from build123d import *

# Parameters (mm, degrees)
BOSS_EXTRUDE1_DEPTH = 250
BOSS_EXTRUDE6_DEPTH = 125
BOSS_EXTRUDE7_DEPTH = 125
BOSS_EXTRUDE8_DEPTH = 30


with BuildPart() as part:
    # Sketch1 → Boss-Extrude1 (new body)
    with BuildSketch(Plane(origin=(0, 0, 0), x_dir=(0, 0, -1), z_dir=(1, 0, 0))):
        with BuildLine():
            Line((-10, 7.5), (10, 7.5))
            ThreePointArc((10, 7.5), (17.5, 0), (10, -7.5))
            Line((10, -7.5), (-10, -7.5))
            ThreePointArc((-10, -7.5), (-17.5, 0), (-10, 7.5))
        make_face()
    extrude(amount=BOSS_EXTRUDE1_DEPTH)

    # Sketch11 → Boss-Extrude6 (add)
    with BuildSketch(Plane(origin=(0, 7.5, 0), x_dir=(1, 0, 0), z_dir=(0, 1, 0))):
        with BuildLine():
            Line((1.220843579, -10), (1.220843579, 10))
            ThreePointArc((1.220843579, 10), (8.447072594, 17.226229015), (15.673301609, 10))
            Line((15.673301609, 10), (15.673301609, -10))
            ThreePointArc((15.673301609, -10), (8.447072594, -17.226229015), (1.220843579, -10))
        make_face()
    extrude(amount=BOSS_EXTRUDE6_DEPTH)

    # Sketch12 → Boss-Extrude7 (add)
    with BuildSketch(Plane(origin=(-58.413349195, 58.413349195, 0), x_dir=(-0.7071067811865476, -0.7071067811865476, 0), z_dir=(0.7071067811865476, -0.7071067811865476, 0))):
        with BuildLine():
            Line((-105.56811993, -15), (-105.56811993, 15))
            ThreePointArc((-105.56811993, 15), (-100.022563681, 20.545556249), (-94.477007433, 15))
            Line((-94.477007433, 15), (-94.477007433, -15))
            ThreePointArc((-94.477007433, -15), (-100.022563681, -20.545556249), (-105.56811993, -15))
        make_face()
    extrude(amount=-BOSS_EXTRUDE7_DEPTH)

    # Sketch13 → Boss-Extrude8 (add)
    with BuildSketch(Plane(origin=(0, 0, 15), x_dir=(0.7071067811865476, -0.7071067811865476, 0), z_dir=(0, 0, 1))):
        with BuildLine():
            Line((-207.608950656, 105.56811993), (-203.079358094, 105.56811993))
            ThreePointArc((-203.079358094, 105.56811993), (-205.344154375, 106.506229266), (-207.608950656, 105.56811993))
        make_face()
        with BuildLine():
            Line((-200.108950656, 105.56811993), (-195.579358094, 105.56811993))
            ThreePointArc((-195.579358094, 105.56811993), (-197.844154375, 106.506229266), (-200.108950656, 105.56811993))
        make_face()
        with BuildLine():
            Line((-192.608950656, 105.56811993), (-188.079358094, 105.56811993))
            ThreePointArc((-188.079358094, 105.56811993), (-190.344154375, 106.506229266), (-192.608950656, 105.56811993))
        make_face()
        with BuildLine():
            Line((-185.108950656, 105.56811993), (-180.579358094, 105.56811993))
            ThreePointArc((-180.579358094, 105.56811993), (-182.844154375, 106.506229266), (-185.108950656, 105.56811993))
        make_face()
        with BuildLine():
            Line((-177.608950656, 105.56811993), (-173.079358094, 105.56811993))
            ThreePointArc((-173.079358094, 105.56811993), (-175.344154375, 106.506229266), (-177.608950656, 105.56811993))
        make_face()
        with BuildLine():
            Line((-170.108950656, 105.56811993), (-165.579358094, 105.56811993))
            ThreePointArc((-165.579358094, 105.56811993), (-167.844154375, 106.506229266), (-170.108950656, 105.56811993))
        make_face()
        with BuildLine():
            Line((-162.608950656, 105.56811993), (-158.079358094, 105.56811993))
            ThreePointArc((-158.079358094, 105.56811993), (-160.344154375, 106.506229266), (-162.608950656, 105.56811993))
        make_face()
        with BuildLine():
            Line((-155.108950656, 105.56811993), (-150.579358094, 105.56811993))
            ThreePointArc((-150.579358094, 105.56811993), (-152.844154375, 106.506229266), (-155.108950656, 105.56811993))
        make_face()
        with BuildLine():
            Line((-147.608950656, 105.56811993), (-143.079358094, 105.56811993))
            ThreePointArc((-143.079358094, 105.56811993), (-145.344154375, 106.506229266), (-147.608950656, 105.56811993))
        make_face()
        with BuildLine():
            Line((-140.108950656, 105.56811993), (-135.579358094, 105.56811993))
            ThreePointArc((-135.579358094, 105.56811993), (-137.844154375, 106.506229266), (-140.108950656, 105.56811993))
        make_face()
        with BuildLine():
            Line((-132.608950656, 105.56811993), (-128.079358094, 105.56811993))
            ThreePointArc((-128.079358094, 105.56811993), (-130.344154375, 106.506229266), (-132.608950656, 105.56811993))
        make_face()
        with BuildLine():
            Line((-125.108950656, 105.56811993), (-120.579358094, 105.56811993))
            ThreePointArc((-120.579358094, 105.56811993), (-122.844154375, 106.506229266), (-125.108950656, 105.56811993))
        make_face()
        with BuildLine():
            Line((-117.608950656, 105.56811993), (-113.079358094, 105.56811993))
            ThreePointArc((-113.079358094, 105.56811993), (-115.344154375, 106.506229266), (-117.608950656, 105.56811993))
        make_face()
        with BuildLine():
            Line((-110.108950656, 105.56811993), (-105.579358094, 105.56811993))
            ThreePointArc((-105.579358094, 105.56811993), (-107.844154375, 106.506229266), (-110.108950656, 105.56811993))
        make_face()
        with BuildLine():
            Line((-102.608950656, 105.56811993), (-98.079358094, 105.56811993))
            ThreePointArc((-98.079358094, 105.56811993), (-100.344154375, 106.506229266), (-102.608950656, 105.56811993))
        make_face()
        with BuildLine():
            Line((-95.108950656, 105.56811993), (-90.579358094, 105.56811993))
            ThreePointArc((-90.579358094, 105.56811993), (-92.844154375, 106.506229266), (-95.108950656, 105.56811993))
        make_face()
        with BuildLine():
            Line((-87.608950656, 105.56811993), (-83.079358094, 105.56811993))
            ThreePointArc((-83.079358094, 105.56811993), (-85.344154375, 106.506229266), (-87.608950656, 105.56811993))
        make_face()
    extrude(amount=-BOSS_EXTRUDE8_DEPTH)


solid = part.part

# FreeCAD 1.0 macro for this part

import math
import FreeCAD as App
import Part
import Sketcher
from FreeCAD import Vector
Q = App.Units.Quantity

doc = App.newDocument("Part")
body = doc.addObject("PartDesign::Body", "Body")

# Sketch on YZ plane
sketch1 = doc.addObject("Sketcher::SketchObject", "Sketch")
body.addObject(sketch1)
sketch1.AttachmentSupport = (doc.YZ_Plane, [""])
sketch1.MapMode = "FlatFace"
sketch1.addGeometry([
    Part.LineSegment(Vector(8, -10, 0), Vector(8, 10, 0)),
    Part.ArcOfCircle(Part.Circle(Vector(0, 10, 0), Vector(0, 0, 1), 8), math.radians(0), math.radians(180)),
    Part.LineSegment(Vector(-8, 10, 0), Vector(-8, -10, 0)),
    Part.ArcOfCircle(Part.Circle(Vector(0, -10, 0), Vector(0, 0, 1), 8), math.radians(180), math.radians(360)),
], False)
sketch1.addConstraint([
    Sketcher.Constraint("Tangent", 0, 2, 1, 1),
    Sketcher.Constraint("Tangent", 1, 2, 2, 1),
    Sketcher.Constraint("Tangent", 2, 2, 3, 1),
    Sketcher.Constraint("Tangent", 3, 2, 0, 1),
    Sketcher.Constraint("Vertical", 0),
    Sketcher.Constraint("Vertical", 2),
    Sketcher.Constraint("Symmetric", 1, 3, 3, 3, -1, 1),
    Sketcher.Constraint("Radius", 1, 7.5),
    Sketcher.Constraint("DistanceY", 0, 1, 0, 2, 20.0),
])
pad1 = doc.addObject("PartDesign::Pad", "Pad")
body.addObject(pad1)
pad1.Profile = sketch1
pad1.Length = 250

# Sketch on XZ plane
sketch2 = doc.addObject("Sketcher::SketchObject", "Sketch001")
body.addObject(sketch2)
sketch2.AttachmentSupport = (doc.XZ_Plane, [""])
sketch2.MapMode = "FlatFace"
sketch2.AttachmentOffset = App.Placement(Vector(0, 0, -7.5), App.Rotation())
sketch2.addGeometry([
    Part.LineSegment(Vector(1, -10, 0), Vector(1, 10, 0)),
    Part.ArcOfCircle(Part.Circle(Vector(8, 10, 0), Vector(0, 0, 1), 7), math.radians(0), math.radians(180)),
    Part.LineSegment(Vector(16, 10, 0), Vector(16, -10, 0)),
    Part.ArcOfCircle(Part.Circle(Vector(8, -10, 0), Vector(0, 0, 1), 7), math.radians(180), math.radians(360)),
], False)
sketch2.addConstraint([
    Sketcher.Constraint("Tangent", 0, 2, 1, 2),
    Sketcher.Constraint("Tangent", 1, 1, 2, 1),
    Sketcher.Constraint("Tangent", 2, 2, 3, 2),
    Sketcher.Constraint("Tangent", 3, 1, 0, 1),
    Sketcher.Constraint("Vertical", 0),
    Sketcher.Constraint("Vertical", 2),
    Sketcher.Constraint("DistanceY", 0, 1, 0, 2, 20.0),
    Sketcher.Constraint("DistanceY", -1, 1, 1, 3, 10.0),
    Sketcher.Constraint("Radius", 1, 7.226229),
    Sketcher.Constraint("DistanceX", -1, 1, 1, 1, 15.673302),
])
pad2 = doc.addObject("PartDesign::Pad", "Pad001")
body.addObject(pad2)
pad2.Profile = sketch2
pad2.Length = 125
pad2.Reversed = True

# Sketch on an angled plane
sketch3 = doc.addObject("Sketcher::SketchObject", "Sketch002")
body.addObject(sketch3)
sketch3.Placement = App.Placement(Vector(-58.413349, 58.413349, 0), App.Rotation(Vector(-0.707106781, -0.707106781, 0), Vector(0, 0, -0.999999999), Vector(0.707106781, -0.707106781, 0), "ZXY"))
sketch3.addGeometry([
    Part.LineSegment(Vector(-106, 15, 0), Vector(-106, -15, 0)),
    Part.ArcOfCircle(Part.Circle(Vector(-100, -15, 0), Vector(0, 0, 1), 6), math.radians(180), math.radians(360)),
    Part.LineSegment(Vector(-94, -15, 0), Vector(-94, 15, 0)),
    Part.ArcOfCircle(Part.Circle(Vector(-100, 15, 0), Vector(0, 0, 1), 6), math.radians(0), math.radians(180)),
], False)
sketch3.addConstraint([
    Sketcher.Constraint("Tangent", 0, 2, 1, 1),
    Sketcher.Constraint("Tangent", 1, 2, 2, 1),
    Sketcher.Constraint("Tangent", 2, 2, 3, 1),
    Sketcher.Constraint("Tangent", 3, 2, 0, 1),
    Sketcher.Constraint("Vertical", 0),
    Sketcher.Constraint("Vertical", 2),
    Sketcher.Constraint("DistanceY", 0, 2, 0, 1, 30.0),
    Sketcher.Constraint("DistanceY", 1, 3, -1, 1, 15.0),
    Sketcher.Constraint("Radius", 1, 5.545556),
    Sketcher.Constraint("DistanceX", 0, 2, -1, 1, 105.56812),
])
pad3 = doc.addObject("PartDesign::Pad", "Pad002")
body.addObject(pad3)
pad3.Profile = sketch3
pad3.Length = 125
pad3.Reversed = True

# Sketch on XY plane
sketch4 = doc.addObject("Sketcher::SketchObject", "Sketch003")
body.addObject(sketch4)
sketch4.AttachmentSupport = (doc.XY_Plane, [""])
sketch4.MapMode = "FlatFace"
sketch4.AttachmentOffset = App.Placement(Vector(0, 0, 15), App.Rotation())
sketch4.addGeometry([
    Part.LineSegment(Vector(-72.2, 221.4, 0), Vector(-69, 218.2, 0)),  # 0
    Part.ArcOfCircle(Part.Circle(Vector(-72.2, 218.2, 0), Vector(0, 0, 1), 3.2), math.radians(0), math.radians(90)),  # 1
    Part.LineSegment(Vector(-66.9, 216.1, 0), Vector(-63.6, 212.9, 0)),  # 2
    Part.ArcOfCircle(Part.Circle(Vector(-66.9, 212.9, 0), Vector(0, 0, 1), 3.2), math.radians(0), math.radians(90)),  # 3
    Part.LineSegment(Vector(-61.5, 210.8, 0), Vector(-58.3, 207.6, 0)),  # 4
    Part.ArcOfCircle(Part.Circle(Vector(-61.5, 207.6, 0), Vector(0, 0, 1), 3.2), math.radians(0), math.radians(90)),  # 5
    Part.LineSegment(Vector(-56.2, 205.5, 0), Vector(-53, 202.3, 0)),  # 6
    Part.ArcOfCircle(Part.Circle(Vector(-56.2, 202.3, 0), Vector(0, 0, 1), 3.2), math.radians(0), math.radians(90)),  # 7
    Part.LineSegment(Vector(-50.9, 200.2, 0), Vector(-47.7, 197, 0)),  # 8
    Part.ArcOfCircle(Part.Circle(Vector(-50.9, 197, 0), Vector(0, 0, 1), 3.2), math.radians(0), math.radians(90)),  # 9
    Part.LineSegment(Vector(-45.6, 194.9, 0), Vector(-42.4, 191.7, 0)),  # 10
    Part.ArcOfCircle(Part.Circle(Vector(-45.6, 191.7, 0), Vector(0, 0, 1), 3.2), math.radians(0), math.radians(90)),  # 11
    Part.LineSegment(Vector(-40.3, 189.6, 0), Vector(-37.1, 186.4, 0)),  # 12
    Part.ArcOfCircle(Part.Circle(Vector(-40.3, 186.4, 0), Vector(0, 0, 1), 3.2), math.radians(0), math.radians(90)),  # 13
    Part.LineSegment(Vector(-35, 184.3, 0), Vector(-31.8, 181.1, 0)),  # 14
    Part.ArcOfCircle(Part.Circle(Vector(-35, 181.1, 0), Vector(0, 0, 1), 3.2), math.radians(0), math.radians(90)),  # 15
    Part.LineSegment(Vector(-29.7, 179, 0), Vector(-26.5, 175.8, 0)),  # 16
    Part.ArcOfCircle(Part.Circle(Vector(-29.7, 175.8, 0), Vector(0, 0, 1), 3.2), math.radians(0), math.radians(90)),  # 17
    Part.LineSegment(Vector(-24.4, 173.7, 0), Vector(-21.2, 170.5, 0)),  # 18
    Part.ArcOfCircle(Part.Circle(Vector(-24.4, 170.5, 0), Vector(0, 0, 1), 3.2), math.radians(0), math.radians(90)),  # 19
    Part.LineSegment(Vector(-19.1, 168.4, 0), Vector(-15.9, 165.2, 0)),  # 20
    Part.ArcOfCircle(Part.Circle(Vector(-19.1, 165.2, 0), Vector(0, 0, 1), 3.2), math.radians(0), math.radians(90)),  # 21
    Part.LineSegment(Vector(-13.8, 163.1, 0), Vector(-10.6, 159.9, 0)),  # 22
    Part.ArcOfCircle(Part.Circle(Vector(-13.8, 159.9, 0), Vector(0, 0, 1), 3.2), math.radians(0), math.radians(90)),  # 23
    Part.LineSegment(Vector(-8.5, 157.8, 0), Vector(-5.3, 154.6, 0)),  # 24
    Part.ArcOfCircle(Part.Circle(Vector(-8.5, 154.6, 0), Vector(0, 0, 1), 3.2), math.radians(0), math.radians(90)),  # 25
    Part.LineSegment(Vector(-3.2, 152.5, 0), Vector(0, 149.3, 0)),  # 26
    Part.ArcOfCircle(Part.Circle(Vector(-3.2, 149.3, 0), Vector(0, 0, 1), 3.2), math.radians(0), math.radians(90)),  # 27
    Part.LineSegment(Vector(2.1, 147.2, 0), Vector(5.3, 144, 0)),  # 28
    Part.ArcOfCircle(Part.Circle(Vector(2.1, 144, 0), Vector(0, 0, 1), 3.2), math.radians(0), math.radians(90)),  # 29
    Part.LineSegment(Vector(7.4, 141.9, 0), Vector(10.6, 138.7, 0)),  # 30
    Part.ArcOfCircle(Part.Circle(Vector(7.4, 138.7, 0), Vector(0, 0, 1), 3.2), math.radians(0), math.radians(90)),  # 31
    Part.LineSegment(Vector(12.7, 136.6, 0), Vector(15.9, 133.4, 0)),  # 32
    Part.ArcOfCircle(Part.Circle(Vector(12.7, 133.4, 0), Vector(0, 0, 1), 3.2), math.radians(0), math.radians(90)),  # 33
], False)
sketch4.addConstraint([
    Sketcher.Constraint("Coincident", 0, 1, 1, 2),
    Sketcher.Constraint("Coincident", 1, 1, 0, 2),
    Sketcher.Constraint("Coincident", 2, 1, 3, 2),
    Sketcher.Constraint("Coincident", 3, 1, 2, 2),
    Sketcher.Constraint("Coincident", 4, 1, 5, 2),
    Sketcher.Constraint("Coincident", 5, 1, 4, 2),
    Sketcher.Constraint("Coincident", 6, 1, 7, 2),
    Sketcher.Constraint("Coincident", 7, 1, 6, 2),
    Sketcher.Constraint("Coincident", 8, 1, 9, 2),
    Sketcher.Constraint("Coincident", 9, 1, 8, 2),
    Sketcher.Constraint("Coincident", 10, 1, 11, 2),
    Sketcher.Constraint("Coincident", 11, 1, 10, 2),
    Sketcher.Constraint("Coincident", 12, 1, 13, 2),
    Sketcher.Constraint("Coincident", 13, 1, 12, 2),
    Sketcher.Constraint("Coincident", 14, 1, 15, 2),
    Sketcher.Constraint("Coincident", 15, 1, 14, 2),
    Sketcher.Constraint("Coincident", 16, 1, 17, 2),
    Sketcher.Constraint("Coincident", 17, 1, 16, 2),
    Sketcher.Constraint("Coincident", 18, 1, 19, 2),
    Sketcher.Constraint("Coincident", 19, 1, 18, 2),
    Sketcher.Constraint("Coincident", 20, 1, 21, 2),
    Sketcher.Constraint("Coincident", 21, 1, 20, 2),
    Sketcher.Constraint("Coincident", 22, 1, 23, 2),
    Sketcher.Constraint("Coincident", 23, 1, 22, 2),
    Sketcher.Constraint("Coincident", 24, 1, 25, 2),
    Sketcher.Constraint("Coincident", 25, 1, 24, 2),
    Sketcher.Constraint("Coincident", 26, 1, 27, 2),
    Sketcher.Constraint("Coincident", 27, 1, 26, 2),
    Sketcher.Constraint("Coincident", 28, 1, 29, 2),
    Sketcher.Constraint("Coincident", 29, 1, 28, 2),
    Sketcher.Constraint("Coincident", 30, 1, 31, 2),
    Sketcher.Constraint("Coincident", 31, 1, 30, 2),
    Sketcher.Constraint("Coincident", 32, 1, 33, 2),
    Sketcher.Constraint("Coincident", 33, 1, 32, 2),
    Sketcher.Constraint("Equal", 1, 3),
    Sketcher.Constraint("Equal", 3, 5),
    Sketcher.Constraint("Equal", 5, 7),
    Sketcher.Constraint("Equal", 7, 9),
    Sketcher.Constraint("Equal", 9, 11),
    Sketcher.Constraint("Equal", 11, 13),
    Sketcher.Constraint("Equal", 13, 15),
    Sketcher.Constraint("Equal", 15, 17),
    Sketcher.Constraint("Equal", 17, 19),
    Sketcher.Constraint("Equal", 19, 21),
    Sketcher.Constraint("Equal", 21, 23),
    Sketcher.Constraint("Equal", 23, 25),
    Sketcher.Constraint("Equal", 25, 27),
    Sketcher.Constraint("Equal", 27, 29),
    Sketcher.Constraint("Equal", 29, 31),
    Sketcher.Constraint("Equal", 31, 33),
    Sketcher.Constraint("Parallel", 0, 2),
    Sketcher.Constraint("Parallel", 2, 4),
    Sketcher.Constraint("Parallel", 4, 6),
    Sketcher.Constraint("Parallel", 6, 8),
    Sketcher.Constraint("Parallel", 8, 10),
    Sketcher.Constraint("Parallel", 10, 12),
    Sketcher.Constraint("Parallel", 12, 14),
    Sketcher.Constraint("Parallel", 14, 16),
    Sketcher.Constraint("Parallel", 16, 18),
    Sketcher.Constraint("Parallel", 18, 20),
    Sketcher.Constraint("Parallel", 20, 22),
    Sketcher.Constraint("Parallel", 22, 24),
    Sketcher.Constraint("Parallel", 24, 26),
    Sketcher.Constraint("Parallel", 26, 28),
    Sketcher.Constraint("Parallel", 28, 30),
    Sketcher.Constraint("Parallel", 30, 32),
    Sketcher.Constraint("Vertical", 1, 3, 0, 1),
    Sketcher.Constraint("Vertical", 3, 3, 2, 1),
    Sketcher.Constraint("Vertical", 5, 3, 4, 1),
    Sketcher.Constraint("Vertical", 7, 3, 6, 1),
    Sketcher.Constraint("Vertical", 9, 3, 8, 1),
    Sketcher.Constraint("Vertical", 11, 3, 10, 1),
    Sketcher.Constraint("Vertical", 13, 3, 12, 1),
    Sketcher.Constraint("Vertical", 15, 3, 14, 1),
    Sketcher.Constraint("Vertical", 17, 3, 16, 1),
    Sketcher.Constraint("Vertical", 19, 3, 18, 1),
    Sketcher.Constraint("Vertical", 21, 3, 20, 1),
    Sketcher.Constraint("Vertical", 23, 3, 22, 1),
    Sketcher.Constraint("Vertical", 25, 3, 24, 1),
    Sketcher.Constraint("Vertical", 27, 3, 26, 1),
    Sketcher.Constraint("Vertical", 29, 3, 28, 1),
    Sketcher.Constraint("Vertical", 31, 3, 30, 1),
    Sketcher.Constraint("Vertical", 33, 3, 32, 1),
    Sketcher.Constraint("Angle", 0, Q("-45 deg")),
    Sketcher.Constraint("Radius", 1, 3.202906),
    Sketcher.Constraint("DistanceX", 1, 3, 3, 3, 5.303301),
    Sketcher.Constraint("DistanceY", 3, 3, 1, 3, 5.303301),
    Sketcher.Constraint("DistanceX", 3, 3, 5, 3, 5.303301),
    Sketcher.Constraint("DistanceY", 5, 3, 3, 3, 5.303301),
    Sketcher.Constraint("DistanceX", 5, 3, 7, 3, 5.303301),
    Sketcher.Constraint("DistanceY", 7, 3, 5, 3, 5.303301),
    Sketcher.Constraint("DistanceX", 7, 3, 9, 3, 5.303301),
    Sketcher.Constraint("DistanceY", 9, 3, 7, 3, 5.303301),
    Sketcher.Constraint("DistanceX", 9, 3, 11, 3, 5.303301),
    Sketcher.Constraint("DistanceY", 11, 3, 9, 3, 5.303301),
    Sketcher.Constraint("DistanceX", 11, 3, 13, 3, 5.303301),
    Sketcher.Constraint("DistanceY", 13, 3, 11, 3, 5.303301),
    Sketcher.Constraint("DistanceX", 13, 3, 15, 3, 5.303301),
    Sketcher.Constraint("DistanceY", 15, 3, 13, 3, 5.303301),
    Sketcher.Constraint("DistanceX", 15, 3, 17, 3, 5.303301),
    Sketcher.Constraint("DistanceY", 17, 3, 15, 3, 5.303301),
    Sketcher.Constraint("DistanceX", 17, 3, 19, 3, 5.303301),
    Sketcher.Constraint("DistanceY", 19, 3, 17, 3, 5.303301),
    Sketcher.Constraint("DistanceX", 19, 3, 21, 3, 5.303301),
    Sketcher.Constraint("DistanceY", 21, 3, 19, 3, 5.303301),
    Sketcher.Constraint("DistanceX", 21, 3, 23, 3, 5.303301),
    Sketcher.Constraint("DistanceY", 23, 3, 21, 3, 5.303301),
    Sketcher.Constraint("DistanceX", 23, 3, 25, 3, 5.303301),
    Sketcher.Constraint("DistanceY", 25, 3, 23, 3, 5.303301),
    Sketcher.Constraint("DistanceX", 25, 3, 27, 3, 5.303301),
    Sketcher.Constraint("DistanceY", 27, 3, 25, 3, 5.303301),
    Sketcher.Constraint("DistanceX", 27, 3, 29, 3, 5.303301),
    Sketcher.Constraint("DistanceY", 29, 3, 27, 3, 5.303301),
    Sketcher.Constraint("DistanceX", 29, 3, 31, 3, 5.303301),
    Sketcher.Constraint("DistanceY", 31, 3, 29, 3, 5.303301),
    Sketcher.Constraint("DistanceX", 31, 3, 33, 3, 5.303301),
    Sketcher.Constraint("DistanceY", 33, 3, 31, 3, 5.303301),
    Sketcher.Constraint("DistanceX", 5, 3, -1, 1, 61.547162),
    Sketcher.Constraint("DistanceY", -1, 1, 9, 3, 197.033521),
])
pad4 = doc.addObject("PartDesign::Pad", "Pad003")
body.addObject(pad4)
pad4.Profile = sketch4
pad4.Length = 30
pad4.Reversed = True

doc.recompute()
